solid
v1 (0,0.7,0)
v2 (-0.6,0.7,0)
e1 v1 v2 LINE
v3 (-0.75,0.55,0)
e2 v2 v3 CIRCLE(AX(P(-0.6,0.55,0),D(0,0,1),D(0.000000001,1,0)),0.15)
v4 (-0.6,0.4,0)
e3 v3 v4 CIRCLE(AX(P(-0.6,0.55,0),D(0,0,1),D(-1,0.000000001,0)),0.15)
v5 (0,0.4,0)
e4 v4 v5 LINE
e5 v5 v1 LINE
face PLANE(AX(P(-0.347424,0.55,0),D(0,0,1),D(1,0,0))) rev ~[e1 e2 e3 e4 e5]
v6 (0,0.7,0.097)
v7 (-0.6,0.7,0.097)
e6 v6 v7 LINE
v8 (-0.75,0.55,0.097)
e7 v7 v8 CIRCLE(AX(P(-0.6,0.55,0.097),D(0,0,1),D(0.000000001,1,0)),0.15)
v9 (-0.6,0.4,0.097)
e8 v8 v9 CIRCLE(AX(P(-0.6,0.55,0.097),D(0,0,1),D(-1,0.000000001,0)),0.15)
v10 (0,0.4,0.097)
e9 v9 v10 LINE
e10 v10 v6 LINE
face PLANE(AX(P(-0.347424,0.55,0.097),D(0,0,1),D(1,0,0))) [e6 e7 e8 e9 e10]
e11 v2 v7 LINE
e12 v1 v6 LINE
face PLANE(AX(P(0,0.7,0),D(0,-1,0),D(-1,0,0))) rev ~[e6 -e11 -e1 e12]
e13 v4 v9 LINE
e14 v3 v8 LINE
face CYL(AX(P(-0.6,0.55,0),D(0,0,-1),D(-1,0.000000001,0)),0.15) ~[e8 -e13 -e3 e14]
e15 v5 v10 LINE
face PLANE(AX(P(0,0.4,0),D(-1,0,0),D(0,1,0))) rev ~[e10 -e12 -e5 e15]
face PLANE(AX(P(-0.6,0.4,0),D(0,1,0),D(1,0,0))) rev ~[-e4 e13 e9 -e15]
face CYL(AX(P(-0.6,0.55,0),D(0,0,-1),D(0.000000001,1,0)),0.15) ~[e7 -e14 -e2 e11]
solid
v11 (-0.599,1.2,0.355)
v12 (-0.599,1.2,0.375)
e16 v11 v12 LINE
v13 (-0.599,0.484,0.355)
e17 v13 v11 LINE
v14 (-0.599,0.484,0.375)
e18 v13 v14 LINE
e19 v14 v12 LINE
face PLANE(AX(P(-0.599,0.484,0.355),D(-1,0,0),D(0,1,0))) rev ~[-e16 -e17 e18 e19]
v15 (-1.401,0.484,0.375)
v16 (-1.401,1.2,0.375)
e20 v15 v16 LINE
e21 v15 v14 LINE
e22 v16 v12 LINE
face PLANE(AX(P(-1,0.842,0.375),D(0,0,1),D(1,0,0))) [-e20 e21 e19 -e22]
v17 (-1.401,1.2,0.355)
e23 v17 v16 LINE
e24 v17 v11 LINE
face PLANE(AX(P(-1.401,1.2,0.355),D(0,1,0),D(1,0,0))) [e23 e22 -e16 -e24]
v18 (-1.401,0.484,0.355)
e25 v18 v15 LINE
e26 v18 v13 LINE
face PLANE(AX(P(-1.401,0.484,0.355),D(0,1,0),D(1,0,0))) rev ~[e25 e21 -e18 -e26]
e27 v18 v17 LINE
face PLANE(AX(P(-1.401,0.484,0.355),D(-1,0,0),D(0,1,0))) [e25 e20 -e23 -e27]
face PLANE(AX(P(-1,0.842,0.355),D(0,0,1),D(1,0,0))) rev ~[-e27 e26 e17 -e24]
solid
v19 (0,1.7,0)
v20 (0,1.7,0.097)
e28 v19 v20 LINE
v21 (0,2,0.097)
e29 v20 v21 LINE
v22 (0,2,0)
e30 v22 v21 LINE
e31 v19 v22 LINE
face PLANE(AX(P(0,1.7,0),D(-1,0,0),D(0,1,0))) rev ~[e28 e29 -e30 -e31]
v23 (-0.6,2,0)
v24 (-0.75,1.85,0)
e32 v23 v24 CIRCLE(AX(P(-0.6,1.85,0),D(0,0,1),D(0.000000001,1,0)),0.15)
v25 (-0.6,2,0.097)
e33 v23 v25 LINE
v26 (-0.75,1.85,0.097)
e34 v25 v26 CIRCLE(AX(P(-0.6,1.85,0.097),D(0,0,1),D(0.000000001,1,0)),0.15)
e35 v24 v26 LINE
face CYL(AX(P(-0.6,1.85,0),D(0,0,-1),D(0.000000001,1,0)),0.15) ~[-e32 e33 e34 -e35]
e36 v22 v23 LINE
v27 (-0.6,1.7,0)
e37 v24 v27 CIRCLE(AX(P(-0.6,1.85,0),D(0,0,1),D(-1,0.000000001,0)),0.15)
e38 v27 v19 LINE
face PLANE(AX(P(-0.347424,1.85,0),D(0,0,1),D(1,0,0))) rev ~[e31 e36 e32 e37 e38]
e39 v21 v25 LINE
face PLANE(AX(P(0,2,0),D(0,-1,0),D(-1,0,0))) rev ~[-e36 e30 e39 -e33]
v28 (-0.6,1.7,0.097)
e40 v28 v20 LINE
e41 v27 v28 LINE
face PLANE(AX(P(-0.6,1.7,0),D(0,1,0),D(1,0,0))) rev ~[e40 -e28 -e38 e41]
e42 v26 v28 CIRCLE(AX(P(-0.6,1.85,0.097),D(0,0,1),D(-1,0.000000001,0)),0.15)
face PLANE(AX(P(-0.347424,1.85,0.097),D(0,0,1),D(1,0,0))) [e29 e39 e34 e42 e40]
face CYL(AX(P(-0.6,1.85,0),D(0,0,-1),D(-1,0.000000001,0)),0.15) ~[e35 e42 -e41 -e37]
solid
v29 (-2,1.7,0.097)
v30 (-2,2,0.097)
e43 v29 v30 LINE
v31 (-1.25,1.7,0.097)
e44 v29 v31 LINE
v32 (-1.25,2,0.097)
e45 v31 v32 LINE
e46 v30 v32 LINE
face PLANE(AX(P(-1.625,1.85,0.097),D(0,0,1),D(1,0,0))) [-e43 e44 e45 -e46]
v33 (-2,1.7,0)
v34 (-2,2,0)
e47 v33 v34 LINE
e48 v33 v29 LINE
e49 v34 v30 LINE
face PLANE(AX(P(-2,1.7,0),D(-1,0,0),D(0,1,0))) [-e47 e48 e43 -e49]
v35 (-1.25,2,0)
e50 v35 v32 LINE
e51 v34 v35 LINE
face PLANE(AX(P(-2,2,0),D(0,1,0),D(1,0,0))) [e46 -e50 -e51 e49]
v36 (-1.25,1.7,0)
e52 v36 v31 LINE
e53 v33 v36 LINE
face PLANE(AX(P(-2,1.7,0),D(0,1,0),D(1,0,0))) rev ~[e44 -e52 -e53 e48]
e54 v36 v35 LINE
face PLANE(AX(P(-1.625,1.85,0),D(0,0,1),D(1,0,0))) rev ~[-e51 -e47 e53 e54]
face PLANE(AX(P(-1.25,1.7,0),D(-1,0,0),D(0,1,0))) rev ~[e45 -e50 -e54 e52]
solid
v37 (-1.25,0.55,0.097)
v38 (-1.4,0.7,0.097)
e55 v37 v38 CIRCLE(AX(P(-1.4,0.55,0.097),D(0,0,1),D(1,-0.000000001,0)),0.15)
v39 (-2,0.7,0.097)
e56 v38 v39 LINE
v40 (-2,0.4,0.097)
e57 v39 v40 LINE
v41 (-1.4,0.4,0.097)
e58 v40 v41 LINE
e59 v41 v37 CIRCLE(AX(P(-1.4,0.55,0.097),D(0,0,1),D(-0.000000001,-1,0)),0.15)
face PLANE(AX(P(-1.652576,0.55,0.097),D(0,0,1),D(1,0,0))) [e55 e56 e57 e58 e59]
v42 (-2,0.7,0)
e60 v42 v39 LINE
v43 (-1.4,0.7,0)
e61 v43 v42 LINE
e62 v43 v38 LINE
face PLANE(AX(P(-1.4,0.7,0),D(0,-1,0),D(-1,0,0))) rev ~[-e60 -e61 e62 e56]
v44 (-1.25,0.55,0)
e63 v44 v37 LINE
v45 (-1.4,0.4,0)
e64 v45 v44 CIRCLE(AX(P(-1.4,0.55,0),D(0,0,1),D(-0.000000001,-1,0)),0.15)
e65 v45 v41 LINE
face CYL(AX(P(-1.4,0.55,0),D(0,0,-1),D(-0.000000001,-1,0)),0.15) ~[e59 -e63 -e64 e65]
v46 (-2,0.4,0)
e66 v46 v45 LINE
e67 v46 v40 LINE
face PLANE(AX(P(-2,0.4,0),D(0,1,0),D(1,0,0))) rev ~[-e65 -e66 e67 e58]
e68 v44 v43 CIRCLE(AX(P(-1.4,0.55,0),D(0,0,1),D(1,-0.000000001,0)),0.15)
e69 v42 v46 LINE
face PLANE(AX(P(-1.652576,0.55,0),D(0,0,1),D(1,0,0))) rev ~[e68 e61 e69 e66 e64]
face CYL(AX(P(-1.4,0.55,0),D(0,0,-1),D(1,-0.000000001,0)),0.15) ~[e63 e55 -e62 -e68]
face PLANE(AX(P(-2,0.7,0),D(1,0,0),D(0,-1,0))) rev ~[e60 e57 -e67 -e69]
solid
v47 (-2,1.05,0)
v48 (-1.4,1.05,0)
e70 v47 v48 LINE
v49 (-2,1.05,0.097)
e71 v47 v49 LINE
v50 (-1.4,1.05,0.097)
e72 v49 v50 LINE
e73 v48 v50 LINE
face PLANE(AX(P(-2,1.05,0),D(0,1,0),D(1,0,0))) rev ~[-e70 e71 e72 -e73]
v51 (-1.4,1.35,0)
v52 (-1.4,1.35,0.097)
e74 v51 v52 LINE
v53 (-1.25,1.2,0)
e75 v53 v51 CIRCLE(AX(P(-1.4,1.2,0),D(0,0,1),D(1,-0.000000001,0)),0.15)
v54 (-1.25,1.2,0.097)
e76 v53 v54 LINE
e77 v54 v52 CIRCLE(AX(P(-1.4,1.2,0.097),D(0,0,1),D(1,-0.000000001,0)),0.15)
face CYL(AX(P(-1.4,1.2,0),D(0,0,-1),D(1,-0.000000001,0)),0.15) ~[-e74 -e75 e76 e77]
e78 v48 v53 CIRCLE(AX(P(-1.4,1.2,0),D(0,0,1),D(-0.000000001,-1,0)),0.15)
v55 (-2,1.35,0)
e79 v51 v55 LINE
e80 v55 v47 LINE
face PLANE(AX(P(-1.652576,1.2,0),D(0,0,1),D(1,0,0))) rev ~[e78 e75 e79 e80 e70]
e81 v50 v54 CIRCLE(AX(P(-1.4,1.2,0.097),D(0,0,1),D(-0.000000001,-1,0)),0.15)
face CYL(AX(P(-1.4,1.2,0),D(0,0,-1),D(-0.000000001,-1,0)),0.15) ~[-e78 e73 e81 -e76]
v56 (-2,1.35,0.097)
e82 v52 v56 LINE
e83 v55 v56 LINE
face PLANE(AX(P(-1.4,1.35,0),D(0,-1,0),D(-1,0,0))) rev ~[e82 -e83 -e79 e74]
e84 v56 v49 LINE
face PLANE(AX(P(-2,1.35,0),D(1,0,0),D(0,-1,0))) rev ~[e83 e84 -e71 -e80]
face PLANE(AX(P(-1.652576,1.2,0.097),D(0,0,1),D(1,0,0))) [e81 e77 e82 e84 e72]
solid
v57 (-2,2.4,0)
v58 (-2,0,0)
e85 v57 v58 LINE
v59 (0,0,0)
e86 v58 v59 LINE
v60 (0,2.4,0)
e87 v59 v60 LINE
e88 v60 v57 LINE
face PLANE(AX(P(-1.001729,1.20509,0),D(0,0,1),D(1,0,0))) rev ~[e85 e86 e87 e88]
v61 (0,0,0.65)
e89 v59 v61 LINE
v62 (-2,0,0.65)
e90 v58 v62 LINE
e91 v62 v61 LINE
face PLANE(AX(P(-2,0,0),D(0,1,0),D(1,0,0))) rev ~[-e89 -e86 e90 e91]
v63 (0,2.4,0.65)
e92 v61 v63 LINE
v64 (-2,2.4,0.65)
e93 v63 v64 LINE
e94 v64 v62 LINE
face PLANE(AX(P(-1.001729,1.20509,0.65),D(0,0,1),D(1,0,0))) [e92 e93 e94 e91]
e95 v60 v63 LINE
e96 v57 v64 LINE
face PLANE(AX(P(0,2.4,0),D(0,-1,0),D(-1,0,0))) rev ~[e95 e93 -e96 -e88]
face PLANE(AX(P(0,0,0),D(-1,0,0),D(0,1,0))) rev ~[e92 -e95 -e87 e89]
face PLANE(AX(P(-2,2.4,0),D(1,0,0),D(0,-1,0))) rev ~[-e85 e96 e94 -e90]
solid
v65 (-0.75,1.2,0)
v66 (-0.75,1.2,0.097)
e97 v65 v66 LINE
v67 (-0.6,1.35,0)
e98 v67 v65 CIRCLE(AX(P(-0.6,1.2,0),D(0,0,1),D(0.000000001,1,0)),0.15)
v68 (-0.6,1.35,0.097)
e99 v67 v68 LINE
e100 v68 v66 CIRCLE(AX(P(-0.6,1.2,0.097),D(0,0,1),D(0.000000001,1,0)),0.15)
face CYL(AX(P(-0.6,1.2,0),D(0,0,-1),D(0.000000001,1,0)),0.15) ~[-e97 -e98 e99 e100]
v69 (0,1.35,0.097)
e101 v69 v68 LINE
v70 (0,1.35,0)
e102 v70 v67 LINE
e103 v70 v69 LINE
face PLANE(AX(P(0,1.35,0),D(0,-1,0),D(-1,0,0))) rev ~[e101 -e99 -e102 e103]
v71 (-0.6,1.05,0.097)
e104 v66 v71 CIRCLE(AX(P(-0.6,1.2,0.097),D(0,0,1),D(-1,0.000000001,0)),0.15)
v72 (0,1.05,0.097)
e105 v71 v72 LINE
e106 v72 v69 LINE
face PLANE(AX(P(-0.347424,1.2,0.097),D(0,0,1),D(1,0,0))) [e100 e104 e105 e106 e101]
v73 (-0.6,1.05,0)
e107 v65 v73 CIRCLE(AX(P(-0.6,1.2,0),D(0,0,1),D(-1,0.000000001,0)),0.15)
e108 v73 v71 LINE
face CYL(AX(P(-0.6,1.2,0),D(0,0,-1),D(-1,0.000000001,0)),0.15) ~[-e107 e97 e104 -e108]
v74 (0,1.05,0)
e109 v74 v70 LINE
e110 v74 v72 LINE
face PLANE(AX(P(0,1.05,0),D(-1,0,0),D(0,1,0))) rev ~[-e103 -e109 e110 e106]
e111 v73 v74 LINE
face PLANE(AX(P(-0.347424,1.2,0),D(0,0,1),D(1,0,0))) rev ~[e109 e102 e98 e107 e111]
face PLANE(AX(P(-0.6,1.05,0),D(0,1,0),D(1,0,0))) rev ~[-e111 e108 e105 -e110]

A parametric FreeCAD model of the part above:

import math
import FreeCAD as App
import Part
import Sketcher

doc = App.newDocument("Part")
body = doc.addObject("PartDesign::Body", "Body")

sketch1 = body.newObject("Sketcher::SketchObject", "Sketch")
sketch1.AttachmentSupport = (doc.getObject("XY_Plane"), [""])
sketch1.MapMode = "FlatFace"
sketch1.addGeometry(Part.LineSegment(App.Vector(-2, 0, 0), App.Vector(0, 0, 0)), False)
sketch1.addGeometry(Part.LineSegment(App.Vector(0, 0, 0), App.Vector(0, 2.4, 0)), False)
sketch1.addGeometry(Part.LineSegment(App.Vector(0, 2.4, 0), App.Vector(-2, 2.4, 0)), False)
sketch1.addGeometry(Part.LineSegment(App.Vector(-2, 2.4, 0), App.Vector(-2, 0, 0)), False)
sketch1.addConstraint(Sketcher.Constraint("Coincident", 0, 2, 1, 1))
sketch1.addConstraint(Sketcher.Constraint("Coincident", 1, 2, 2, 1))
sketch1.addConstraint(Sketcher.Constraint("Coincident", 2, 2, 3, 1))
sketch1.addConstraint(Sketcher.Constraint("Coincident", 3, 2, 0, 1))
sketch1.addConstraint(Sketcher.Constraint("Horizontal", 0))
sketch1.addConstraint(Sketcher.Constraint("Vertical", 1))
sketch1.addConstraint(Sketcher.Constraint("Horizontal", 2))
sketch1.addConstraint(Sketcher.Constraint("Vertical", 3))
sketch1.addConstraint(Sketcher.Constraint("Coincident", 0, 2, -1, 1))
sketch1.addConstraint(Sketcher.Constraint("DistanceX", 0, 1, 0, 2, 2.0))
sketch1.addConstraint(Sketcher.Constraint("DistanceY", 1, 1, 1, 2, 2.4))
pad1 = body.newObject("PartDesign::Pad", "Pad")
pad1.Profile = sketch1
pad1.Length = 0.65
body2 = doc.addObject("PartDesign::Body", "Body001")

sketch2 = body2.newObject("Sketcher::SketchObject", "Sketch001")
sketch2.AttachmentSupport = (doc.getObject("XY_Plane001"), [""])
sketch2.MapMode = "FlatFace"
sketch2.addGeometry(Part.LineSegment(App.Vector(-0.6, 1.7, 0), App.Vector(0, 1.7, 0)), False)
sketch2.addGeometry(Part.LineSegment(App.Vector(0, 1.7, 0), App.Vector(0, 2, 0)), False)
sketch2.addGeometry(Part.LineSegment(App.Vector(0, 2, 0), App.Vector(-0.6, 2, 0)), False)
sketch2.addGeometry(Part.ArcOfCircle(Part.Circle(App.Vector(-0.6, 1.85, 0), App.Vector(0, 0, 1), 0.15), math.radians(90), math.radians(180)), False)
sketch2.addGeometry(Part.ArcOfCircle(Part.Circle(App.Vector(-0.6, 1.85, 0), App.Vector(0, 0, 1), 0.15), math.radians(180), math.radians(270)), False)
sketch2.addConstraint(Sketcher.Constraint("Coincident", 0, 2, 1, 1))
sketch2.addConstraint(Sketcher.Constraint("Coincident", 1, 2, 2, 1))
sketch2.addConstraint(Sketcher.Constraint("Tangent", 2, 2, 3, 1))
sketch2.addConstraint(Sketcher.Constraint("Tangent", 3, 2, 4, 1))
sketch2.addConstraint(Sketcher.Constraint("Tangent", 4, 2, 0, 1))
sketch2.addConstraint(Sketcher.Constraint("Horizontal", 0))
sketch2.addConstraint(Sketcher.Constraint("Vertical", 1))
sketch2.addConstraint(Sketcher.Constraint("Horizontal", 2))
sketch2.addConstraint(Sketcher.Constraint("Equal", 3, 4))
sketch2.addConstraint(Sketcher.Constraint("PointOnObject", 0, 2, -2))
sketch2.addConstraint(Sketcher.Constraint("Horizontal", 4, 3, 3, 2))
sketch2.addConstraint(Sketcher.Constraint("Radius", 3, 0.15))
sketch2.addConstraint(Sketcher.Constraint("DistanceX", 0, 1, 0, 2, 0.6))
sketch2.addConstraint(Sketcher.Constraint("DistanceY", -1, 1, 1, 2, 2.0))
pad2 = body2.newObject("PartDesign::Pad", "Pad001")
pad2.Profile = sketch2
pad2.Length = 0.097
body3 = doc.addObject("PartDesign::Body", "Body002")

sketch3 = body3.newObject("Sketcher::SketchObject", "Sketch002")
sketch3.AttachmentSupport = (doc.getObject("XY_Plane002"), [""])
sketch3.MapMode = "FlatFace"
sketch3.addGeometry(Part.LineSegment(App.Vector(-2, 2, 0), App.Vector(-2, 1.7, 0)), False)
sketch3.addGeometry(Part.LineSegment(App.Vector(-2, 1.7, 0), App.Vector(-1.25, 1.7, 0)), False)
sketch3.addGeometry(Part.LineSegment(App.Vector(-1.25, 1.7, 0), App.Vector(-1.25, 2, 0)), False)
sketch3.addGeometry(Part.LineSegment(App.Vector(-1.25, 2, 0), App.Vector(-2, 2, 0)), False)
sketch3.addConstraint(Sketcher.Constraint("Coincident", 0, 2, 1, 1))
sketch3.addConstraint(Sketcher.Constraint("Coincident", 1, 2, 2, 1))
sketch3.addConstraint(Sketcher.Constraint("Coincident", 2, 2, 3, 1))
sketch3.addConstraint(Sketcher.Constraint("Coincident", 3, 2, 0, 1))
sketch3.addConstraint(Sketcher.Constraint("Vertical", 0))
sketch3.addConstraint(Sketcher.Constraint("Horizontal", 1))
sketch3.addConstraint(Sketcher.Constraint("Vertical", 2))
sketch3.addConstraint(Sketcher.Constraint("Horizontal", 3))
sketch3.addConstraint(Sketcher.Constraint("DistanceY", 0, 2, 0, 1, 0.3))
sketch3.addConstraint(Sketcher.Constraint("DistanceX", 0, 2, -1, 1, 2.0))
sketch3.addConstraint(Sketcher.Constraint("DistanceY", -1, 1, 2, 2, 2.0))
sketch3.addConstraint(Sketcher.Constraint("DistanceX", 1, 1, 1, 2, 0.75))
pad3 = body3.newObject("PartDesign::Pad", "Pad002")
pad3.Profile = sketch3
pad3.Length = 0.097
body4 = doc.addObject("PartDesign::Body", "Body003")

sketch4 = body4.newObject("Sketcher::SketchObject", "Sketch003")
sketch4.AttachmentSupport = (doc.getObject("XY_Plane003"), [""])
sketch4.MapMode = "FlatFace"
sketch4.addGeometry(Part.LineSegment(App.Vector(-0.6, 1.05, 0), App.Vector(0, 1.05, 0)), False)
sketch4.addGeometry(Part.LineSegment(App.Vector(0, 1.05, 0), App.Vector(0, 1.35, 0)), False)
sketch4.addGeometry(Part.LineSegment(App.Vector(0, 1.35, 0), App.Vector(-0.6, 1.35, 0)), False)
sketch4.addGeometry(Part.ArcOfCircle(Part.Circle(App.Vector(-0.6, 1.2, 0), App.Vector(0, 0, 1), 0.15), math.radians(90), math.radians(180)), False)
sketch4.addGeometry(Part.ArcOfCircle(Part.Circle(App.Vector(-0.6, 1.2, 0), App.Vector(0, 0, 1), 0.15), math.radians(180), math.radians(270)), False)
sketch4.addConstraint(Sketcher.Constraint("Coincident", 0, 2, 1, 1))
sketch4.addConstraint(Sketcher.Constraint("Coincident", 1, 2, 2, 1))
sketch4.addConstraint(Sketcher.Constraint("Tangent", 2, 2, 3, 1))
sketch4.addConstraint(Sketcher.Constraint("Tangent", 3, 2, 4, 1))
sketch4.addConstraint(Sketcher.Constraint("Tangent", 4, 2, 0, 1))
sketch4.addConstraint(Sketcher.Constraint("Horizontal", 0))
sketch4.addConstraint(Sketcher.Constraint("Vertical", 1))
sketch4.addConstraint(Sketcher.Constraint("Horizontal", 2))
sketch4.addConstraint(Sketcher.Constraint("Equal", 3, 4))
sketch4.addConstraint(Sketcher.Constraint("PointOnObject", 0, 2, -2))
sketch4.addConstraint(Sketcher.Constraint("Horizontal", 4, 3, 3, 2))
sketch4.addConstraint(Sketcher.Constraint("Radius", 3, 0.15))
sketch4.addConstraint(Sketcher.Constraint("DistanceX", 0, 1, 0, 2, 0.6))
sketch4.addConstraint(Sketcher.Constraint("DistanceY", -1, 1, 3, 3, 1.2))
pad4 = body4.newObject("PartDesign::Pad", "Pad003")
pad4.Profile = sketch4
pad4.Length = 0.097
body5 = doc.addObject("PartDesign::Body", "Body004")

sketch5 = body5.newObject("Sketcher::SketchObject", "Sketch004")
sketch5.AttachmentSupport = (doc.getObject("XY_Plane004"), [""])
sketch5.MapMode = "FlatFace"
sketch5.addGeometry(Part.LineSegment(App.Vector(-0.6, 0.4, 0), App.Vector(0, 0.4, 0)), False)
sketch5.addGeometry(Part.LineSegment(App.Vector(0, 0.4, 0), App.Vector(0, 0.7, 0)), False)
sketch5.addGeometry(Part.LineSegment(App.Vector(0, 0.7, 0), App.Vector(-0.6, 0.7, 0)), False)
sketch5.addGeometry(Part.ArcOfCircle(Part.Circle(App.Vector(-0.6, 0.55, 0), App.Vector(0, 0, 1), 0.15), math.radians(90), math.radians(180)), False)
sketch5.addGeometry(Part.ArcOfCircle(Part.Circle(App.Vector(-0.6, 0.55, 0), App.Vector(0, 0, 1), 0.15), math.radians(180), math.radians(270)), False)
sketch5.addConstraint(Sketcher.Constraint("Coincident", 0, 2, 1, 1))
sketch5.addConstraint(Sketcher.Constraint("Coincident", 1, 2, 2, 1))
sketch5.addConstraint(Sketcher.Constraint("Tangent", 2, 2, 3, 1))
sketch5.addConstraint(Sketcher.Constraint("Tangent", 3, 2, 4, 1))
sketch5.addConstraint(Sketcher.Constraint("Tangent", 4, 2, 0, 1))
sketch5.addConstraint(Sketcher.Constraint("Horizontal", 0))
sketch5.addConstraint(Sketcher.Constraint("Vertical", 1))
sketch5.addConstraint(Sketcher.Constraint("Horizontal", 2))
sketch5.addConstraint(Sketcher.Constraint("Equal", 3, 4))
sketch5.addConstraint(Sketcher.Constraint("PointOnObject", 0, 2, -2))
sketch5.addConstraint(Sketcher.Constraint("Horizontal", 4, 3, 3, 2))
sketch5.addConstraint(Sketcher.Constraint("Radius", 3, 0.15))
sketch5.addConstraint(Sketcher.Constraint("DistanceX", 0, 1, 0, 2, 0.6))
sketch5.addConstraint(Sketcher.Constraint("DistanceY", -1, 1, 0, 2, 0.4))
pad5 = body5.newObject("PartDesign::Pad", "Pad004")
pad5.Profile = sketch5
pad5.Length = 0.097
body6 = doc.addObject("PartDesign::Body", "Body005")

sketch6 = body6.newObject("Sketcher::SketchObject", "Sketch005")
sketch6.AttachmentSupport = (doc.getObject("XY_Plane005"), [""])
sketch6.MapMode = "FlatFace"
sketch6.addGeometry(Part.LineSegment(App.Vector(-2, 1.35, 0), App.Vector(-2, 1.05, 0)), False)
sketch6.addGeometry(Part.LineSegment(App.Vector(-2, 1.05, 0), App.Vector(-1.4, 1.05, 0)), False)
sketch6.addGeometry(Part.ArcOfCircle(Part.Circle(App.Vector(-1.4, 1.2, 0), App.Vector(0, 0, 1), 0.15), math.radians(-90), math.radians(0)), False)
sketch6.addGeometry(Part.ArcOfCircle(Part.Circle(App.Vector(-1.4, 1.2, 0), App.Vector(0, 0, 1), 0.15), math.radians(0), math.radians(90)), False)
sketch6.addGeometry(Part.LineSegment(App.Vector(-1.4, 1.35, 0), App.Vector(-2, 1.35, 0)), False)
sketch6.addConstraint(Sketcher.Constraint("Coincident", 0, 2, 1, 1))
sketch6.addConstraint(Sketcher.Constraint("Tangent", 1, 2, 2, 1))
sketch6.addConstraint(Sketcher.Constraint("Tangent", 2, 2, 3, 1))
sketch6.addConstraint(Sketcher.Constraint("Tangent", 3, 2, 4, 1))
sketch6.addConstraint(Sketcher.Constraint("Coincident", 4, 2, 0, 1))
sketch6.addConstraint(Sketcher.Constraint("Vertical", 0))
sketch6.addConstraint(Sketcher.Constraint("Horizontal", 1))
sketch6.addConstraint(Sketcher.Constraint("Horizontal", 4))
sketch6.addConstraint(Sketcher.Constraint("Equal", 2, 3))
sketch6.addConstraint(Sketcher.Constraint("Horizontal", 3, 3, 2, 2))
sketch6.addConstraint(Sketcher.Constraint("Radius", 2, 0.15))
sketch6.addConstraint(Sketcher.Constraint("DistanceX", 1, 1, 1, 2, 0.6))
sketch6.addConstraint(Sketcher.Constraint("DistanceX", 0, 2, -1, 1, 2.0))
sketch6.addConstraint(Sketcher.Constraint("DistanceY", -1, 1, 2, 3, 1.2))
pad6 = body6.newObject("PartDesign::Pad", "Pad005")
pad6.Profile = sketch6
pad6.Length = 0.097
body7 = doc.addObject("PartDesign::Body", "Body006")

sketch7 = body7.newObject("Sketcher::SketchObject", "Sketch006")
sketch7.AttachmentSupport = (doc.getObject("XY_Plane006"), [""])
sketch7.MapMode = "FlatFace"
sketch7.addGeometry(Part.LineSegment(App.Vector(-2, 0.7, 0), App.Vector(-2, 0.4, 0)), False)
sketch7.addGeometry(Part.LineSegment(App.Vector(-2, 0.4, 0), App.Vector(-1.4, 0.4, 0)), False)
sketch7.addGeometry(Part.ArcOfCircle(Part.Circle(App.Vector(-1.4, 0.55, 0), App.Vector(0, 0, 1), 0.15), math.radians(-90), math.radians(0)), False)
sketch7.addGeometry(Part.ArcOfCircle(Part.Circle(App.Vector(-1.4, 0.55, 0), App.Vector(0, 0, 1), 0.15), math.radians(0), math.radians(90)), False)
sketch7.addGeometry(Part.LineSegment(App.Vector(-1.4, 0.7, 0), App.Vector(-2, 0.7, 0)), False)
sketch7.addConstraint(Sketcher.Constraint("Coincident", 0, 2, 1, 1))
sketch7.addConstraint(Sketcher.Constraint("Tangent", 1, 2, 2, 1))
sketch7.addConstraint(Sketcher.Constraint("Tangent", 2, 2, 3, 1))
sketch7.addConstraint(Sketcher.Constraint("Tangent", 3, 2, 4, 1))
sketch7.addConstraint(Sketcher.Constraint("Coincident", 4, 2, 0, 1))
sketch7.addConstraint(Sketcher.Constraint("Vertical", 0))
sketch7.addConstraint(Sketcher.Constraint("Horizontal", 1))
sketch7.addConstraint(Sketcher.Constraint("Horizontal", 4))
sketch7.addConstraint(Sketcher.Constraint("Equal", 2, 3))
sketch7.addConstraint(Sketcher.Constraint("Horizontal", 3, 3, 2, 2))
sketch7.addConstraint(Sketcher.Constraint("Radius", 2, 0.15))
sketch7.addConstraint(Sketcher.Constraint("DistanceX", 1, 1, 1, 2, 0.6))
sketch7.addConstraint(Sketcher.Constraint("DistanceX", 0, 2, -1, 1, 2.0))
sketch7.addConstraint(Sketcher.Constraint("DistanceY", -1, 1, 0, 2, 0.4))
pad7 = body7.newObject("PartDesign::Pad", "Pad006")
pad7.Profile = sketch7
pad7.Length = 0.097
body8 = doc.addObject("PartDesign::Body", "Body007")

sketch8 = body8.newObject("Sketcher::SketchObject", "Sketch007")
sketch8.AttachmentSupport = (doc.getObject("XY_Plane007"), [""])
sketch8.MapMode = "FlatFace"
sketch8.AttachmentOffset = App.Placement(App.Vector(0, 0, 0.355), App.Rotation())
sketch8.addGeometry(Part.LineSegment(App.Vector(-1.4, 1.2, 0), App.Vector(-1.4, 0.5, 0)), False)
sketch8.addGeometry(Part.LineSegment(App.Vector(-1.4, 0.5, 0), App.Vector(-0.6, 0.5, 0)), False)
sketch8.addGeometry(Part.LineSegment(App.Vector(-0.6, 0.5, 0), App.Vector(-0.6, 1.2, 0)), False)
sketch8.addGeometry(Part.LineSegment(App.Vector(-0.6, 1.2, 0), App.Vector(-1.4, 1.2, 0)), False)
sketch8.addConstraint(Sketcher.Constraint("Coincident", 0, 2, 1, 1))
sketch8.addConstraint(Sketcher.Constraint("Coincident", 1, 2, 2, 1))
sketch8.addConstraint(Sketcher.Constraint("Coincident", 2, 2, 3, 1))
sketch8.addConstraint(Sketcher.Constraint("Coincident", 3, 2, 0, 1))
sketch8.addConstraint(Sketcher.Constraint("Vertical", 0))
sketch8.addConstraint(Sketcher.Constraint("Horizontal", 1))
sketch8.addConstraint(Sketcher.Constraint("Vertical", 2))
sketch8.addConstraint(Sketcher.Constraint("Horizontal", 3))
sketch8.addConstraint(Sketcher.Constraint("DistanceY", -1, 1, 2, 2, 1.2))
sketch8.addConstraint(Sketcher.Constraint("DistanceX", 1, 1, 1, 2, 0.802))
sketch8.addConstraint(Sketcher.Constraint("DistanceY", 0, 2, 0, 1, 0.716))
sketch8.addConstraint(Sketcher.Constraint("DistanceX", 0, 2, -1, 1, 1.401))
pad8 = body8.newObject("PartDesign::Pad", "Pad007")
pad8.Profile = sketch8
pad8.Length = 0.02

doc.recompute()
